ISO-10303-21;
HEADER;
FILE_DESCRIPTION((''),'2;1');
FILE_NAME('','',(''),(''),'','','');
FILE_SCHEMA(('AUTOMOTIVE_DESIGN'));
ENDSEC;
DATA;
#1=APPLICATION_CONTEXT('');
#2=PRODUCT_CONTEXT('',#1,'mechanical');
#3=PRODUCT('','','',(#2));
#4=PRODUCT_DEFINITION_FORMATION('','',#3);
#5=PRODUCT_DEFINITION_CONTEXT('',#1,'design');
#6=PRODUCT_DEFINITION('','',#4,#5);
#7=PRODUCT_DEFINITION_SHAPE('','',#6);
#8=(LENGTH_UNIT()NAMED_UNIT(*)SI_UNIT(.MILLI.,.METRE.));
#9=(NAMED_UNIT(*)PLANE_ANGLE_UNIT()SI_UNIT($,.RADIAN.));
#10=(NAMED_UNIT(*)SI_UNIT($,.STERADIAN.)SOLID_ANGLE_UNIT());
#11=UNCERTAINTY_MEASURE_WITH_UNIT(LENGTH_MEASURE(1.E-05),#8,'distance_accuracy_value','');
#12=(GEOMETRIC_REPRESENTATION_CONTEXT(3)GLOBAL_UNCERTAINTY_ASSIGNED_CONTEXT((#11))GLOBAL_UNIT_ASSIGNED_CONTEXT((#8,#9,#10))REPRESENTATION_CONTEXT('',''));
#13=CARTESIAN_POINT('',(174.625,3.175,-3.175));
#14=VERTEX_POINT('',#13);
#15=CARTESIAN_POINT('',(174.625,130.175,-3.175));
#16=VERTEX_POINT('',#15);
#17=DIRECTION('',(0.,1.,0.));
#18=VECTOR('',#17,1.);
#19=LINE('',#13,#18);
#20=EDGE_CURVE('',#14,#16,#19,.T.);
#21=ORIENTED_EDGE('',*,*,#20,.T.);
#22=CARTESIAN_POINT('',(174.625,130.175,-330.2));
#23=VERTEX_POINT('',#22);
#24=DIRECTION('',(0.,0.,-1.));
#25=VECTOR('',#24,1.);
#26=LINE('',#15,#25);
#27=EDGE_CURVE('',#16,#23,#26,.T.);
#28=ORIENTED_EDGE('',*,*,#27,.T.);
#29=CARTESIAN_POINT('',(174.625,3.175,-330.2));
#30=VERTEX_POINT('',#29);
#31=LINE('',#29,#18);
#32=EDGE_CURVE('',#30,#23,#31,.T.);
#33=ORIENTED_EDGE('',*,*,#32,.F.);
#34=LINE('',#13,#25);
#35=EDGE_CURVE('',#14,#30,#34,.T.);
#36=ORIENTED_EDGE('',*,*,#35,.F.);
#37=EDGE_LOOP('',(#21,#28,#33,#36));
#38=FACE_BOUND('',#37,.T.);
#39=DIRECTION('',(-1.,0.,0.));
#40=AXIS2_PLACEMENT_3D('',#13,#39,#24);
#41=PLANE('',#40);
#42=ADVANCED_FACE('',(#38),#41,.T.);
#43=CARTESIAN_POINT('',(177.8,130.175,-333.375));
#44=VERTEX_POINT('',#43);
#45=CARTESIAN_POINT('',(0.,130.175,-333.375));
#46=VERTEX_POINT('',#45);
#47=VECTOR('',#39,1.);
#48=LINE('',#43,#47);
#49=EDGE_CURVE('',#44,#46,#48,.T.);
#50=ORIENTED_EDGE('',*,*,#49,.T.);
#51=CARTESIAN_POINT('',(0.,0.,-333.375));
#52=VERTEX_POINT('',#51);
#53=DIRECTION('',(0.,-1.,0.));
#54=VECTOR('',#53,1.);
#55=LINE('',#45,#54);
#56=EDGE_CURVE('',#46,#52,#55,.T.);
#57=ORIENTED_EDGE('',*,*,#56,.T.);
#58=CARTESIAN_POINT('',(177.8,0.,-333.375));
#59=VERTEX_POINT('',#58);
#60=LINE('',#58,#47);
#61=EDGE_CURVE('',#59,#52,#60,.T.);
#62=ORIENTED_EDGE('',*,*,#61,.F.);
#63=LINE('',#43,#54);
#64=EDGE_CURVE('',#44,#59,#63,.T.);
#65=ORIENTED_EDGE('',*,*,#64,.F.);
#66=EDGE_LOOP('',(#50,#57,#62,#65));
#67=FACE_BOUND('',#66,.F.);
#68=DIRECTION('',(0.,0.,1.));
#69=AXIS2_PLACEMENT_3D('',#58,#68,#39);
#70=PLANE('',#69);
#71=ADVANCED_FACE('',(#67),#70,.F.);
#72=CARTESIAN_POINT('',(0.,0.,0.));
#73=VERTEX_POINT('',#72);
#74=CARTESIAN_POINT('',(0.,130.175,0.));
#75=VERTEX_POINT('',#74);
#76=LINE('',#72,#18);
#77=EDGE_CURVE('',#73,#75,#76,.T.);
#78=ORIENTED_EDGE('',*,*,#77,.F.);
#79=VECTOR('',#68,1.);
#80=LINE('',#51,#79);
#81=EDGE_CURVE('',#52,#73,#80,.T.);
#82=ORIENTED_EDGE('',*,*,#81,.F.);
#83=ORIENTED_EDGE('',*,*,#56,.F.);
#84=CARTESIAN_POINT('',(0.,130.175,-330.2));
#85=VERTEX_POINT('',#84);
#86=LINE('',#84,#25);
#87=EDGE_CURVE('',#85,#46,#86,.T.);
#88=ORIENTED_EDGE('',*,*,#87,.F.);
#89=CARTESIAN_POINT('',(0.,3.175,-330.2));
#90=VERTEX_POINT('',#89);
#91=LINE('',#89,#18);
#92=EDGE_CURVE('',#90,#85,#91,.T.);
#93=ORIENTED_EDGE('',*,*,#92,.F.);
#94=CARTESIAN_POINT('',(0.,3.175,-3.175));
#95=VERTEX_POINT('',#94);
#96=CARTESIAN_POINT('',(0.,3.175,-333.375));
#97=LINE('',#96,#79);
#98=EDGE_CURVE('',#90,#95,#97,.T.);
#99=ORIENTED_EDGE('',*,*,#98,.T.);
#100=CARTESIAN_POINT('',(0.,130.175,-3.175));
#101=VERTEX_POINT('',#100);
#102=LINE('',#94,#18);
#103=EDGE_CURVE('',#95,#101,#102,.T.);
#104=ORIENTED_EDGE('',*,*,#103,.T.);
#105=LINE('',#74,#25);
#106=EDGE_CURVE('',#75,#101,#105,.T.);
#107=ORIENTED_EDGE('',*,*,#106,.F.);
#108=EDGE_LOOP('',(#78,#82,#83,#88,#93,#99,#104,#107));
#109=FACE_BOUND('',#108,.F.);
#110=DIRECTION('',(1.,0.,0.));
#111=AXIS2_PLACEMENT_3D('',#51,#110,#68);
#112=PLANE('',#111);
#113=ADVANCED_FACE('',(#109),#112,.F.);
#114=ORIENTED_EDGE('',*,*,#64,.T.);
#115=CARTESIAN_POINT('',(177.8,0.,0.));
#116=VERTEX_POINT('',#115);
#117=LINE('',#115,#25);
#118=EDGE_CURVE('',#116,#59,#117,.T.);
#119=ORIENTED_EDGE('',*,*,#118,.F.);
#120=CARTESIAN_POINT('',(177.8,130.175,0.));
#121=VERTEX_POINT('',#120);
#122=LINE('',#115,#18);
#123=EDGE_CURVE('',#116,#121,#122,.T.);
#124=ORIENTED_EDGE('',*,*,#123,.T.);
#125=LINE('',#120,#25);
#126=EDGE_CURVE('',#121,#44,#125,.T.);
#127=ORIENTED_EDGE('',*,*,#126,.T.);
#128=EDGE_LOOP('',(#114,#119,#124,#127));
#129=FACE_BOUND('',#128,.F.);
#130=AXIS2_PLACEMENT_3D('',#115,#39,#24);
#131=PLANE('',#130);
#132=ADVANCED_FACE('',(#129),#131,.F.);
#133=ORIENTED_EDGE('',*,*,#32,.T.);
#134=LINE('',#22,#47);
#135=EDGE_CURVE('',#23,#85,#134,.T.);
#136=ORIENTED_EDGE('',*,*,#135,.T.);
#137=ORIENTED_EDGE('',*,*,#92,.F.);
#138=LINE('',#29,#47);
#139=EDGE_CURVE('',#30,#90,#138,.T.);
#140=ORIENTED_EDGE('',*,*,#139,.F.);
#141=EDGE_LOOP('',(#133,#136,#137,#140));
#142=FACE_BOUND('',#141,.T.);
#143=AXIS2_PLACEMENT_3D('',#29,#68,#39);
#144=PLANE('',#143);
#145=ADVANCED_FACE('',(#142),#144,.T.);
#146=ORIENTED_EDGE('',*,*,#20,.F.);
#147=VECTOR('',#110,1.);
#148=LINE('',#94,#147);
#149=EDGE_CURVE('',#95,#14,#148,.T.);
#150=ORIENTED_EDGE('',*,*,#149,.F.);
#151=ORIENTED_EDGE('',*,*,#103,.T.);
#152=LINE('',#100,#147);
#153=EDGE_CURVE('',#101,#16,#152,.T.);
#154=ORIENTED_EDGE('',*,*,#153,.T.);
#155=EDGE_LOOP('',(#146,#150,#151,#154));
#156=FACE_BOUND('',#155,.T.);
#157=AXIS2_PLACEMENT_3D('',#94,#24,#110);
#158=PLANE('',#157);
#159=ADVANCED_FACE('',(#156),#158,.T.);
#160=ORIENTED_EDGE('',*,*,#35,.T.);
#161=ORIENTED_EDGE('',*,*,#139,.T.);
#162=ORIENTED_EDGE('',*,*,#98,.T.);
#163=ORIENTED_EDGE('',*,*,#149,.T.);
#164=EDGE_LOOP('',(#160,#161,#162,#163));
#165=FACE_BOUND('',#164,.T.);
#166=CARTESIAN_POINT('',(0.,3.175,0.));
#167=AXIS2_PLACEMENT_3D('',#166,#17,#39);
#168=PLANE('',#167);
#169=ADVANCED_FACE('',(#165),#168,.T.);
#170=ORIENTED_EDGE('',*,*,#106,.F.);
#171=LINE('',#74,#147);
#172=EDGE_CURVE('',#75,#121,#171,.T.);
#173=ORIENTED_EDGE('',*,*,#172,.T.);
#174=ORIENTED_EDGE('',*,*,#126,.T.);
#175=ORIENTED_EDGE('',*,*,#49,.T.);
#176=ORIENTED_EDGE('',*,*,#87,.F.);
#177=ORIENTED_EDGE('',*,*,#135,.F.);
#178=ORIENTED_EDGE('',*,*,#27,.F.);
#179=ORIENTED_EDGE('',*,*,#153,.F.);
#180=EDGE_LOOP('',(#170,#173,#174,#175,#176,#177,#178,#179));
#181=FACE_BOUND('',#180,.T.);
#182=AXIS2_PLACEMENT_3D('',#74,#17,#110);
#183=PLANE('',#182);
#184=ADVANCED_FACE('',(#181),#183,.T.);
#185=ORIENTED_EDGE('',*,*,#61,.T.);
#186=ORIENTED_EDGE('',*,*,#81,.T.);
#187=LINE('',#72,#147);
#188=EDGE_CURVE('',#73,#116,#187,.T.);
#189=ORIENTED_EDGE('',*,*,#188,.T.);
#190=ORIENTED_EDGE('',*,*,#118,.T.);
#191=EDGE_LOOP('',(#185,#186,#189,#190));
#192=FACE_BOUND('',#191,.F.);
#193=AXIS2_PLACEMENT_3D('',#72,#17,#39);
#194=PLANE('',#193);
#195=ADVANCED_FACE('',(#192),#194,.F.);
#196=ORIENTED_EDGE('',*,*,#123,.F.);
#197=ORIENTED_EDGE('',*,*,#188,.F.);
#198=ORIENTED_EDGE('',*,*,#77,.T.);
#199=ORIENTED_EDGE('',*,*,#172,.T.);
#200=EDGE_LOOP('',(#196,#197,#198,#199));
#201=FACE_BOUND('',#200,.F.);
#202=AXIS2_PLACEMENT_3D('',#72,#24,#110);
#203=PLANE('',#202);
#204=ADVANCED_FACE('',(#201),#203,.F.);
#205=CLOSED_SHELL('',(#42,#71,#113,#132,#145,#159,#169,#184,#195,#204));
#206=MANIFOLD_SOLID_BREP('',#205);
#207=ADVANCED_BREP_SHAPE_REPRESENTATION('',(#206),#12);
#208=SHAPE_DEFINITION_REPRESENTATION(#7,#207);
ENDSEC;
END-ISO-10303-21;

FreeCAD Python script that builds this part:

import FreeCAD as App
import Part
import Sketcher

V = App.Vector
Q = App.Units.Quantity


def add_polygon(sketch, points):
    """Adds a closed chain of lines whose ends are joined by coincident constraints."""
    first, n = sketch.GeometryCount, len(points)
    for a, b in zip(points, points[1:] + points[:1]):
        sketch.addGeometry(Part.LineSegment(App.Vector(*a, 0), App.Vector(*b, 0)), False)
    for i in range(n):
        sketch.addConstraint(Sketcher.Constraint("Coincident", first + i, 2, first + (i + 1) % n, 1))

doc = App.newDocument("Part")
body = doc.addObject("PartDesign::Body", "Body")

sketch1 = body.newObject("Sketcher::SketchObject", "Sketch")
sketch1.AttachmentSupport = (doc.getObject("XZ_Plane"), [""])
sketch1.MapMode = "FlatFace"
add_polygon(sketch1, [(0, -333), (0, 0), (178, 0), (178, -333)])
sketch1.addConstraint([
    Sketcher.Constraint("Vertical", 0),
    Sketcher.Constraint("Horizontal", 1),
    Sketcher.Constraint("Vertical", 2),
    Sketcher.Constraint("Horizontal", 3),
    Sketcher.Constraint("Coincident", 0, 2, -1, 1),
    Sketcher.Constraint("DistanceX", 1, 1, 1, 2, Q("7 in")),
    Sketcher.Constraint("DistanceY", 0, 1, 0, 2, Q("13.125 in")),
])
pad1 = body.newObject("PartDesign::Pad", "Pad")
pad1.Profile = sketch1
pad1.Length = Q("0.125 in")
pad1.Reversed = True

sketch2 = body.newObject("Sketcher::SketchObject", "Sketch001")
sketch2.AttachmentSupport = (doc.getObject("XZ_Plane"), [""])
sketch2.MapMode = "FlatFace"
sketch2.AttachmentOffset = App.Placement(V(0, 0, -0.125 * 25.4), App.Rotation())
add_polygon(sketch2, [(174.6, -3.2), (0, -3.2), (0, 0), (177.8, 0), (177.8, -333.4), (0, -333.4), (0, -330.2), (174.6, -330.2)])
sketch2.addConstraint([
    Sketcher.Constraint("Horizontal", 0),
    Sketcher.Constraint("Vertical", 1),
    Sketcher.Constraint("Horizontal", 2),
    Sketcher.Constraint("Vertical", 3),
    Sketcher.Constraint("Horizontal", 4),
    Sketcher.Constraint("Vertical", 5),
    Sketcher.Constraint("Horizontal", 6),
    Sketcher.Constraint("Vertical", 7),
    Sketcher.Constraint("Coincident", 1, 2, -1, 1),
    Sketcher.Constraint("PointOnObject", 4, 2, -2),
    Sketcher.Constraint("Equal", 1, 5),
    Sketcher.Constraint("DistanceX", 2, 1, 2, 2, Q("7 in")),
    Sketcher.Constraint("DistanceY", 1, 1, 1, 2, Q("0.125 in")),
    Sketcher.Constraint("DistanceY", 5, 2, -1, 1, Q("13 in")),
    Sketcher.Constraint("DistanceX", 6, 2, 3, 2, Q("0.125 in")),
])
pad2 = body.newObject("PartDesign::Pad", "Pad001")
pad2.Profile = sketch2
pad2.Length = Q("5 in")
pad2.Reversed = True

doc.recompute()
